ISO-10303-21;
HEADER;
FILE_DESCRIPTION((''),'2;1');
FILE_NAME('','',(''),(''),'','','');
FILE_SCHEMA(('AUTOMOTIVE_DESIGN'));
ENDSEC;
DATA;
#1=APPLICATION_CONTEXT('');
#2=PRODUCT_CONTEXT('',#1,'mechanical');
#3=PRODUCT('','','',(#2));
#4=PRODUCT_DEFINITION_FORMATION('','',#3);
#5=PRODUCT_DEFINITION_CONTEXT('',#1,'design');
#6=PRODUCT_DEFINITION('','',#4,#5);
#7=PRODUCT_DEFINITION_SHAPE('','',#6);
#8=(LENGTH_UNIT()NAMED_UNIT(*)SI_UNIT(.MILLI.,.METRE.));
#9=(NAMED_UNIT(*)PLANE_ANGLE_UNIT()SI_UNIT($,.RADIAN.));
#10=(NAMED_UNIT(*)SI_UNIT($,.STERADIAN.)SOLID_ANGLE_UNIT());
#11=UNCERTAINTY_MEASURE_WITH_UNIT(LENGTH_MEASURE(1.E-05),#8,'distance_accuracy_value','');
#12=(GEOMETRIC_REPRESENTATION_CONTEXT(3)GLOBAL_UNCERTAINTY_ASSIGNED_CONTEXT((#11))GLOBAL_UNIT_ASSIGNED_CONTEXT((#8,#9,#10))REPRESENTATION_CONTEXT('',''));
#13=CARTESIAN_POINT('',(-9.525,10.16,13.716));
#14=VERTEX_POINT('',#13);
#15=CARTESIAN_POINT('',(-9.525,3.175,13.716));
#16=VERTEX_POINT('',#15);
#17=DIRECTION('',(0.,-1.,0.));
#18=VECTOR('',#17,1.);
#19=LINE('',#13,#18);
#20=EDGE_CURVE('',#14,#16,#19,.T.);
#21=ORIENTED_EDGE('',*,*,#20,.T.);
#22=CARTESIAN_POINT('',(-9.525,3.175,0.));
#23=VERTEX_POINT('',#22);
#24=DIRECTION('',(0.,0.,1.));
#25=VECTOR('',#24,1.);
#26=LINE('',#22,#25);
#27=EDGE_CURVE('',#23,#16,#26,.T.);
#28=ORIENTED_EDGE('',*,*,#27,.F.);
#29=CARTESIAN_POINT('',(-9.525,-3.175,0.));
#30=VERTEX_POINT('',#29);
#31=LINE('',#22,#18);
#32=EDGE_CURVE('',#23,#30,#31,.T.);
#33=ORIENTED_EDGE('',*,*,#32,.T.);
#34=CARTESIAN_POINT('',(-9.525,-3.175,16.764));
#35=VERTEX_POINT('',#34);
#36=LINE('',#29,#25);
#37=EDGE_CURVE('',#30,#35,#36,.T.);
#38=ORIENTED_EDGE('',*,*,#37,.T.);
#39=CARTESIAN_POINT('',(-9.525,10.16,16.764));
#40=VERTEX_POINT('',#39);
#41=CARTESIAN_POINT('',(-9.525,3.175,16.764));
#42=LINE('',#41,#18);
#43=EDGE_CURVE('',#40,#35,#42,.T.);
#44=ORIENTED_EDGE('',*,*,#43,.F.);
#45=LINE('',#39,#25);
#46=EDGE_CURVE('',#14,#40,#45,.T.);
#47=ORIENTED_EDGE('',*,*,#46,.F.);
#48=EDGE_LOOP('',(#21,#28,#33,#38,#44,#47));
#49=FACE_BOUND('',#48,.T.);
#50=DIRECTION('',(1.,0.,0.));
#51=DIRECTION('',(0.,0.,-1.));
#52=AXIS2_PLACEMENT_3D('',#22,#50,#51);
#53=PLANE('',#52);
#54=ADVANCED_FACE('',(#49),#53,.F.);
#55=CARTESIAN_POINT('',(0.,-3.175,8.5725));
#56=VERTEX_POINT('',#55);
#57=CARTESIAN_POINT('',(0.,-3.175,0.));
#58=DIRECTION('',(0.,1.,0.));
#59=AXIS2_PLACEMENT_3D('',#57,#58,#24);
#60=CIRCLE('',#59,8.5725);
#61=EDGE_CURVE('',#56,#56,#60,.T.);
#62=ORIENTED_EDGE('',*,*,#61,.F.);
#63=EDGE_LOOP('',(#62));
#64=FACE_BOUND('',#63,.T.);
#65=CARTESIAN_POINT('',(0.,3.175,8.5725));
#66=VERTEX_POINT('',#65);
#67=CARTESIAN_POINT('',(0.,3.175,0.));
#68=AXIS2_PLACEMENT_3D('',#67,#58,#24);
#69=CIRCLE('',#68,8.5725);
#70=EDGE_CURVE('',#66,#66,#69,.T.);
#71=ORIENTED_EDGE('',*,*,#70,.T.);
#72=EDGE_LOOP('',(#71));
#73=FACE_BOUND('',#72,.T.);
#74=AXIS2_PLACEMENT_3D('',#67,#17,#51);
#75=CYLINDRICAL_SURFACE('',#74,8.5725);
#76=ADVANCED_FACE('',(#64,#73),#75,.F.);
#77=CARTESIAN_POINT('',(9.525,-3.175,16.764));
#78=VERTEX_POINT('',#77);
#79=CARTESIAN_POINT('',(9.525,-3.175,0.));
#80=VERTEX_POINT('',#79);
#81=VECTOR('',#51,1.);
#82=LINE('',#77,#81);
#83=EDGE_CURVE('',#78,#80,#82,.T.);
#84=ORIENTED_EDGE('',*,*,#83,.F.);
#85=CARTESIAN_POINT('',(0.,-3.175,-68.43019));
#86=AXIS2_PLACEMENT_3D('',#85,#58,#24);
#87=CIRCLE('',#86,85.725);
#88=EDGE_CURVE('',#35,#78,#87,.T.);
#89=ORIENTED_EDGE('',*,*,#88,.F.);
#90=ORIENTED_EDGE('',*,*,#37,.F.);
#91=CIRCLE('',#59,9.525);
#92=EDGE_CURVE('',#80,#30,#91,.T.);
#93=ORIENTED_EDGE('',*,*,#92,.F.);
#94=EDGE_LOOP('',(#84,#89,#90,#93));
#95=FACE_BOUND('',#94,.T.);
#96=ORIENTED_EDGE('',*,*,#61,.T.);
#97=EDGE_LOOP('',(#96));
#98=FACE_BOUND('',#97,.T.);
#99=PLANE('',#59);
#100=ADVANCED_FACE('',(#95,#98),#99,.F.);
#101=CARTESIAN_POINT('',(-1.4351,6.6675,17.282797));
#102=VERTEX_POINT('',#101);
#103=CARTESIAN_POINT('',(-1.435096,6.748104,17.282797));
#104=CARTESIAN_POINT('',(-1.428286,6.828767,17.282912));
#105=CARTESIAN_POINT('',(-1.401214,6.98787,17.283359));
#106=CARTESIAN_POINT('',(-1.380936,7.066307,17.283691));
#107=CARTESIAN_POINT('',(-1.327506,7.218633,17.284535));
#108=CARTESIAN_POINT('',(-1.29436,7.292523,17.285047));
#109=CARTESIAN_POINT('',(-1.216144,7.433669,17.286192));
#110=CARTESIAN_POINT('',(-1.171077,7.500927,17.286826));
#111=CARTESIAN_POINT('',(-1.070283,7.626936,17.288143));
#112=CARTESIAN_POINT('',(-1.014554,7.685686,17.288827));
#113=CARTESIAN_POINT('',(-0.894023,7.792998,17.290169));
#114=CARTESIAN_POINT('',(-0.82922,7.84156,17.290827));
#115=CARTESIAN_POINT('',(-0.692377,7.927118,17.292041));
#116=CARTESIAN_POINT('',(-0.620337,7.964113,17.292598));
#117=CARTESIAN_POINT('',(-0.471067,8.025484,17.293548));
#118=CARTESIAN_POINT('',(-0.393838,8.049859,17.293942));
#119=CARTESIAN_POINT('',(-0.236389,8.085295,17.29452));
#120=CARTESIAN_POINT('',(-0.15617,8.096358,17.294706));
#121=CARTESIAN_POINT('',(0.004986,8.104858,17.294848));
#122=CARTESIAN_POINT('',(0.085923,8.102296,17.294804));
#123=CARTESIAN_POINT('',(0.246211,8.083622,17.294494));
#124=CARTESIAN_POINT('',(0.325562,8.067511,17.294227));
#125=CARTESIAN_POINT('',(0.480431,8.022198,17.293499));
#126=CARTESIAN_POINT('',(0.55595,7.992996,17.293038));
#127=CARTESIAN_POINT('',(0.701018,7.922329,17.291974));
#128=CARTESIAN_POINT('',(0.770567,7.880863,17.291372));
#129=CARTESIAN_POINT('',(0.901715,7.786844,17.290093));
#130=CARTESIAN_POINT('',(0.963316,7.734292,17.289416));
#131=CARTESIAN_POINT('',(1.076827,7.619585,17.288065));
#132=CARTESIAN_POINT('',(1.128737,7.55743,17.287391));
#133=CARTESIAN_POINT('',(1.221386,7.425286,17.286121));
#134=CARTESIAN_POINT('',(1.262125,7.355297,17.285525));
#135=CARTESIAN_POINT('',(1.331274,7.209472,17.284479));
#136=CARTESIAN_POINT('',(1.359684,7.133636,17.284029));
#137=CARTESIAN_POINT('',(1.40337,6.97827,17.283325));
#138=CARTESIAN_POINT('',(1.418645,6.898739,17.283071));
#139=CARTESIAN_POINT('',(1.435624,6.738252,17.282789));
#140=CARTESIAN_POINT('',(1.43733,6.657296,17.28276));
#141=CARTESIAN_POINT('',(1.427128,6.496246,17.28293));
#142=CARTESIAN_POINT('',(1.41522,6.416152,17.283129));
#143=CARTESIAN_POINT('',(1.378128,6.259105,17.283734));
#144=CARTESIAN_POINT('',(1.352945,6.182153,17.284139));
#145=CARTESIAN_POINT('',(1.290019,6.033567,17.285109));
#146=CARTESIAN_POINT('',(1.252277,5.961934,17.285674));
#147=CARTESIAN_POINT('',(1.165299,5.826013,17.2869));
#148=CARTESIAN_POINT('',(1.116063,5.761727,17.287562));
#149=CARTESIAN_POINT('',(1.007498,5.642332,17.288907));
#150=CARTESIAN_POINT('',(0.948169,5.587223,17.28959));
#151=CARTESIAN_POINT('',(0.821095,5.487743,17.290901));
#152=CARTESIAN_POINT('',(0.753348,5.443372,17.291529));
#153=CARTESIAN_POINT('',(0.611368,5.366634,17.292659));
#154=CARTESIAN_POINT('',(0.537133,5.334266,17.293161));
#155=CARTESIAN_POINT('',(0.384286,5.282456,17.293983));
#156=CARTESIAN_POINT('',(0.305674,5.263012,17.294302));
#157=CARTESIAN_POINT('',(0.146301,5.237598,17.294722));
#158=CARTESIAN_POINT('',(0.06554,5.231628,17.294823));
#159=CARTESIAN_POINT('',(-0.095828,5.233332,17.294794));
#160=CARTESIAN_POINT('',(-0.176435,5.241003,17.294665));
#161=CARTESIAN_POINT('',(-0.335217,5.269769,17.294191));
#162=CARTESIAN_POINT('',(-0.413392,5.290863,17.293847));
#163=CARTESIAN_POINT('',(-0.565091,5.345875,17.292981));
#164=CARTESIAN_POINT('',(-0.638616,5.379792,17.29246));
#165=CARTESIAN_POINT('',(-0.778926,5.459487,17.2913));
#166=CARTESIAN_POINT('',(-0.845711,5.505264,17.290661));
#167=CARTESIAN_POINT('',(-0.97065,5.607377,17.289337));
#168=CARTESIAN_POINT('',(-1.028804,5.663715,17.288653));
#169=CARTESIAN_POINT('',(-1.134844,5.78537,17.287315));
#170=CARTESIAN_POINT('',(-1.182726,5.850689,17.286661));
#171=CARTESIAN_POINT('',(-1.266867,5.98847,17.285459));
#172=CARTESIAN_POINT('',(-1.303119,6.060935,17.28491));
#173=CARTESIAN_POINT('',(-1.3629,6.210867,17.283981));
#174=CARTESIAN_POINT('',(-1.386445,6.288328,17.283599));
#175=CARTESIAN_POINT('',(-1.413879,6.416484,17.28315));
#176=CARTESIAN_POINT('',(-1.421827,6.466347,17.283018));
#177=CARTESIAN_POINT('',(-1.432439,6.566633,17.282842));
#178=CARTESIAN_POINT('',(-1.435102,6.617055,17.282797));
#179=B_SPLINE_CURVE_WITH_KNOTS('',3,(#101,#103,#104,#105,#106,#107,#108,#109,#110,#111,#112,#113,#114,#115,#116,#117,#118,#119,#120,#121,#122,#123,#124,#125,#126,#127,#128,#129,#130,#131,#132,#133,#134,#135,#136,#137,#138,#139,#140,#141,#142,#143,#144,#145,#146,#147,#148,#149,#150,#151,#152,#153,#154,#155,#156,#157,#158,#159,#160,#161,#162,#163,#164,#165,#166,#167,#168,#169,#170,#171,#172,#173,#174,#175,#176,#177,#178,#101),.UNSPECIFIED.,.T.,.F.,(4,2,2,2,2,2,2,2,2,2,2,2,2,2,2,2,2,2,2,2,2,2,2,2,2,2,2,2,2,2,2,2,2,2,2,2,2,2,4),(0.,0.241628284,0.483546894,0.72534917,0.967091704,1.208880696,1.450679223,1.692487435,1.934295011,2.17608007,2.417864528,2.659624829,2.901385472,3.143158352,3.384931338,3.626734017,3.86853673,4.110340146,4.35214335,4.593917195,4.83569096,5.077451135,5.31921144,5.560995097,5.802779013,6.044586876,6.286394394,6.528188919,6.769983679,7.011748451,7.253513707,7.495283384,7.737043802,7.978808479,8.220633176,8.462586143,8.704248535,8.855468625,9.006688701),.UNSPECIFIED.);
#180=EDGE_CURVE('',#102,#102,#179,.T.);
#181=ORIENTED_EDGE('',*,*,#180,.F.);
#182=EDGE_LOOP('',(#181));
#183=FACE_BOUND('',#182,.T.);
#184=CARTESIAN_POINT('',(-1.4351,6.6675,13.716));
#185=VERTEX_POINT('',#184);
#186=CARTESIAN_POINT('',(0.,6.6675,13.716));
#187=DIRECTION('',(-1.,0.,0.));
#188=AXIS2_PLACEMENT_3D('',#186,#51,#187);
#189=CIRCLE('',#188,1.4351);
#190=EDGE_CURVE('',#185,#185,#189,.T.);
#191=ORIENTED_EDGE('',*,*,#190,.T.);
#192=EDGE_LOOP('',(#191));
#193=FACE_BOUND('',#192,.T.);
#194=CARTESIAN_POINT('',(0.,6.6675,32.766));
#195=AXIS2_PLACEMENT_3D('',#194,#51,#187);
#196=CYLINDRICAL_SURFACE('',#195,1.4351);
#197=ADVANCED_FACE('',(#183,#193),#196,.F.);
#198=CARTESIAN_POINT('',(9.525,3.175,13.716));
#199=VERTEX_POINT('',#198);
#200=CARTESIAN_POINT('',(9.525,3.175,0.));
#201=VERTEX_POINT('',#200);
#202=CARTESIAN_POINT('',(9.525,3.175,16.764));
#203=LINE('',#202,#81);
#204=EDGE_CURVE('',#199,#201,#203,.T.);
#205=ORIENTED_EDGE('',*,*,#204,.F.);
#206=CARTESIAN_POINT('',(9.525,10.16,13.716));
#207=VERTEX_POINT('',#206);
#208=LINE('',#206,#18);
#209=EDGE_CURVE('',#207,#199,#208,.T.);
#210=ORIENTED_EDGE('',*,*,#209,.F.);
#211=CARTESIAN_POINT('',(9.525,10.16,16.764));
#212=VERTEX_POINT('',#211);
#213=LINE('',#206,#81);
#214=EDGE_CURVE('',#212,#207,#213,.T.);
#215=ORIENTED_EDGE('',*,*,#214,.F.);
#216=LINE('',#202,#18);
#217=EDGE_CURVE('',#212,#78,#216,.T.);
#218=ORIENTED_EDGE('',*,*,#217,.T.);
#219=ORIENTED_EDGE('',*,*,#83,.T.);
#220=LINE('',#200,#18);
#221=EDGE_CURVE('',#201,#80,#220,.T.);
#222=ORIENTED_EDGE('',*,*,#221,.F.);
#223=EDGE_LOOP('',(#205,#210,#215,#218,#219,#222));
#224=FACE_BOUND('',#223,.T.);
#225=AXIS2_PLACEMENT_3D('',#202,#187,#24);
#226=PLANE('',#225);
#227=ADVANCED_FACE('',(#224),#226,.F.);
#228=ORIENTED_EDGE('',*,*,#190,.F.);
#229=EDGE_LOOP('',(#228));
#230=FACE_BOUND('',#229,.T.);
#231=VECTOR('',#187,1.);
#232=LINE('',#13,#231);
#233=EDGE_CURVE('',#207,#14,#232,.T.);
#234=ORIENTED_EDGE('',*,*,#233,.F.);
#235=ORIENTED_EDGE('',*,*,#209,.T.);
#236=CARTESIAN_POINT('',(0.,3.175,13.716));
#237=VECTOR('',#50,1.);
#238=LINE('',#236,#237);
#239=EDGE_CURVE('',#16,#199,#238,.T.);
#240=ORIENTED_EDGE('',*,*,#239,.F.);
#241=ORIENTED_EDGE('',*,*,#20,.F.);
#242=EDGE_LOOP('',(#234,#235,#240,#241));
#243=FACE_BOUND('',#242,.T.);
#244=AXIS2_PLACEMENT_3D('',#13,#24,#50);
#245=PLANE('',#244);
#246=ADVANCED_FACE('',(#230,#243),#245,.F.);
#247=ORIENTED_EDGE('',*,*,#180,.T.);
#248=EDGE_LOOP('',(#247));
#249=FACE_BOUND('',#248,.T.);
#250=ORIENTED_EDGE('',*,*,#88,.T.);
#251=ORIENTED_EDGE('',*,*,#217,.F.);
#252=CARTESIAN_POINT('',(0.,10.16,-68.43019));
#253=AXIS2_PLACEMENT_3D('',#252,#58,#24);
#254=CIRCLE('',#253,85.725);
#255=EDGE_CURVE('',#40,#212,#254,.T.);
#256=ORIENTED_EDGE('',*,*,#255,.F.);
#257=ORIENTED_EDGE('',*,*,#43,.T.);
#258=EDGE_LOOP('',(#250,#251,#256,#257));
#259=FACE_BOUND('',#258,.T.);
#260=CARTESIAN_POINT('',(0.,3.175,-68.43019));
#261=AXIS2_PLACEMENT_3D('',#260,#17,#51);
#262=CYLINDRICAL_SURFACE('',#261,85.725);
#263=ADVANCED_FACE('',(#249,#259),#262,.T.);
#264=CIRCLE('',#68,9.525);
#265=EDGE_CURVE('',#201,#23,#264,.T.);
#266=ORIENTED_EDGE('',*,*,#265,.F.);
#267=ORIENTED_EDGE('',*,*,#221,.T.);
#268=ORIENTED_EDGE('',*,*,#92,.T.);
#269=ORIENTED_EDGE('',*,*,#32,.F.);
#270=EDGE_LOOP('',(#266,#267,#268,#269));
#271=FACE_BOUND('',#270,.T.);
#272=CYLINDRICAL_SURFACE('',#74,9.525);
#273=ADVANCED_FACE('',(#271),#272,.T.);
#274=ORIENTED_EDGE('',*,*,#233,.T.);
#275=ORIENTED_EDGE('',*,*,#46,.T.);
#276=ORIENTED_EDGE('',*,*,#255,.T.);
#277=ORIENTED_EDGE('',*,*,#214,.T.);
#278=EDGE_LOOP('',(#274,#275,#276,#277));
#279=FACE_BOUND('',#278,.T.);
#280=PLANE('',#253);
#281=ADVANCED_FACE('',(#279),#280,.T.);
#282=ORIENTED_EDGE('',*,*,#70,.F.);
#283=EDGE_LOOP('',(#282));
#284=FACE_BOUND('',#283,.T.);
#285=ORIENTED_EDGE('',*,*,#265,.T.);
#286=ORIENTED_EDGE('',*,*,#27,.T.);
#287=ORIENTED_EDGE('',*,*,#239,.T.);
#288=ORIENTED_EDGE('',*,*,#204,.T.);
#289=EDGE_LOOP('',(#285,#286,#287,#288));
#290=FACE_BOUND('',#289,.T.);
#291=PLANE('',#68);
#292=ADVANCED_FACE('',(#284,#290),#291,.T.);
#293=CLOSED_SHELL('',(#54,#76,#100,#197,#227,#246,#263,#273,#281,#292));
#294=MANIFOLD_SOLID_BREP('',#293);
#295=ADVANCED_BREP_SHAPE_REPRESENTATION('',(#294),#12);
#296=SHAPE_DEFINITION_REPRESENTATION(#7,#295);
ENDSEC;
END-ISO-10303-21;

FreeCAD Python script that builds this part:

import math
import FreeCAD as App
import Part
import Sketcher

V = App.Vector
Q = App.Units.Quantity

doc = App.newDocument("Part")
params = doc.addObject("Spreadsheet::Sheet", "Params")
for row, (alias, value) in enumerate([
    ("sketch1_diameter", "0.75 in"),
    ("sketch1_diameter2", "0.675 in"),
    ("pad1_length", "0.25 in"),
    ("sketch2_radius", "3.375 in"),
    ("sketch2_radius2", "0.375 in"),
    ("sketch2_height", "0.66 in"),
    ("pad2_length", "0.25 in"),
    ("sketch3_radius", "3.375 in"),
    ("sketch3_width", "0.75 in"),
    ("sketch3_height", "0.12 in"),
    ("pad3_length", "0.4 in"),
    ("sketch4_diameter", "0.113 in"),
    ("pocket1_length", "0.75 in"),
], start=1):
    params.set(f"A{row}", alias)
    params.set(f"B{row}", "=" + value)
    params.setAlias(f"B{row}", alias)

body = doc.addObject("PartDesign::Body", "Body")

# Sketch on XZ plane
sketch1 = body.newObject("Sketcher::SketchObject", "Sketch")
sketch1.AttachmentSupport = (doc.getObject("XZ_Plane"), [""])
sketch1.MapMode = "FlatFace"
sketch1.addGeometry([
    Part.Circle(V(0, 0, 0), V(0, 0, 1), 10),
    Part.Circle(V(0, 0, 0), V(0, 0, 1), 9),
], False)
sketch1.addConstraint([
    Sketcher.Constraint("Coincident", 0, 3, -1, 1),
    Sketcher.Constraint("Coincident", 1, 3, -1, 1),
    Sketcher.Constraint("Diameter", 0, Q("0.75 in")),
    Sketcher.Constraint("Diameter", 1, Q("0.675 in")),
])
sketch1.setExpression("Constraints[2]", "Params.sketch1_diameter")
sketch1.setExpression("Constraints[3]", "Params.sketch1_diameter2")
pad1 = body.newObject("PartDesign::Pad", "Pad")
pad1.Profile = sketch1
pad1.setExpression("Length", "Params.pad1_length")
pad1.Midplane = True

# Sketch on XZ plane
sketch2 = body.newObject("Sketcher::SketchObject", "Sketch001")
sketch2.AttachmentSupport = (doc.getObject("XZ_Plane"), [""])
sketch2.MapMode = "FlatFace"
sketch2.addGeometry([
    Part.LineSegment(V(-10, 0, 0), V(-10, 17, 0)),
    Part.ArcOfCircle(Part.Circle(V(0, -68, 0), V(0, 0, 1), 86), math.radians(83.62), math.radians(96.38)),
    Part.LineSegment(V(10, 17, 0), V(10, 0, 0)),
    Part.ArcOfCircle(Part.Circle(V(0, 0, 0), V(0, 0, 1), 10), math.radians(0), math.radians(180)),
], False)
sketch2.addConstraint([
    Sketcher.Constraint("Coincident", 0, 2, 1, 2),
    Sketcher.Constraint("Coincident", 1, 1, 2, 1),
    Sketcher.Constraint("Tangent", 2, 2, 3, 1),
    Sketcher.Constraint("Tangent", 3, 2, 0, 1),
    Sketcher.Constraint("Vertical", 0),
    Sketcher.Constraint("Vertical", 2),
    Sketcher.Constraint("Coincident", 3, 3, -1, 1),
    Sketcher.Constraint("PointOnObject", 1, 3, -2),
    Sketcher.Constraint("Radius", 1, Q("3.375 in")),
    Sketcher.Constraint("Radius", 3, Q("0.375 in")),
    Sketcher.Constraint("DistanceY", 0, 1, 0, 2, Q("0.66 in")),
])
sketch2.setExpression("Constraints[8]", "Params.sketch2_radius")
sketch2.setExpression("Constraints[9]", "Params.sketch2_radius2")
sketch2.setExpression("Constraints[10]", "Params.sketch2_height")
pad2 = body.newObject("PartDesign::Pad", "Pad001")
pad2.Profile = sketch2
pad2.setExpression("Length", "Params.pad2_length")
pad2.Midplane = True

# Sketch on XZ plane
sketch3 = body.newObject("Sketcher::SketchObject", "Sketch002")
sketch3.AttachmentSupport = (doc.getObject("XZ_Plane"), [""])
sketch3.MapMode = "FlatFace"
sketch3.addGeometry([
    Part.LineSegment(V(-9.5, 13.7, 0), V(-9.5, 16.8, 0)),
    Part.ArcOfCircle(Part.Circle(V(0, -68.4, 0), V(0, 0, 1), 85.7), math.radians(83.62), math.radians(96.38)),
    Part.LineSegment(V(9.5, 16.8, 0), V(9.5, 13.7, 0)),
    Part.LineSegment(V(9.5, 13.7, 0), V(-9.5, 13.7, 0)),
], False)
sketch3.addConstraint([
    Sketcher.Constraint("Coincident", 0, 2, 1, 2),
    Sketcher.Constraint("Coincident", 1, 1, 2, 1),
    Sketcher.Constraint("Coincident", 2, 2, 3, 1),
    Sketcher.Constraint("Coincident", 3, 2, 0, 1),
    Sketcher.Constraint("Vertical", 0),
    Sketcher.Constraint("Vertical", 2),
    Sketcher.Constraint("Horizontal", 3),
    Sketcher.Constraint("Symmetric", 0, 2, 1, 1, -2),
    Sketcher.Constraint("Radius", 1, Q("3.375 in")),
    Sketcher.Constraint("DistanceX", 3, 2, 3, 1, Q("0.75 in")),
    Sketcher.Constraint("DistanceY", 0, 1, 0, 2, Q("0.12 in")),
    Sketcher.Constraint("DistanceY", -1, 1, 0, 2, Q("0.66 in")),
])
sketch3.setExpression("Constraints[8]", "Params.sketch3_radius")
sketch3.setExpression("Constraints[9]", "Params.sketch3_width")
sketch3.setExpression("Constraints[10]", "Params.sketch3_height")
pad3 = body.newObject("PartDesign::Pad", "Pad002")
pad3.Profile = sketch3
pad3.setExpression("Length", "Params.pad3_length")
pad3.Reversed = True

# Sketch on XY plane
sketch4 = body.newObject("Sketcher::SketchObject", "Sketch003")
sketch4.AttachmentSupport = (doc.getObject("XY_Plane"), [""])
sketch4.MapMode = "FlatFace"
sketch4.AttachmentOffset = App.Placement(V(0, 0, 0.54 * 25.4), App.Rotation())
sketch4.addGeometry(Part.Circle(V(0, 6.7, 0), V(0, 0, 1), 1.4), False)
sketch4.addConstraint([
    Sketcher.Constraint("PointOnObject", 0, 3, -2),
    Sketcher.Constraint("Diameter", 0, Q("0.113 in")),
    Sketcher.Constraint("DistanceY", -1, 1, 0, 3, Q("0.2625 in")),
])
sketch4.setExpression("Constraints[1]", "Params.sketch4_diameter")
pocket1 = body.newObject("PartDesign::Pocket", "Pocket")
pocket1.Profile = sketch4
pocket1.setExpression("Length", "Params.pocket1_length")
pocket1.Reversed = True

doc.recompute()
